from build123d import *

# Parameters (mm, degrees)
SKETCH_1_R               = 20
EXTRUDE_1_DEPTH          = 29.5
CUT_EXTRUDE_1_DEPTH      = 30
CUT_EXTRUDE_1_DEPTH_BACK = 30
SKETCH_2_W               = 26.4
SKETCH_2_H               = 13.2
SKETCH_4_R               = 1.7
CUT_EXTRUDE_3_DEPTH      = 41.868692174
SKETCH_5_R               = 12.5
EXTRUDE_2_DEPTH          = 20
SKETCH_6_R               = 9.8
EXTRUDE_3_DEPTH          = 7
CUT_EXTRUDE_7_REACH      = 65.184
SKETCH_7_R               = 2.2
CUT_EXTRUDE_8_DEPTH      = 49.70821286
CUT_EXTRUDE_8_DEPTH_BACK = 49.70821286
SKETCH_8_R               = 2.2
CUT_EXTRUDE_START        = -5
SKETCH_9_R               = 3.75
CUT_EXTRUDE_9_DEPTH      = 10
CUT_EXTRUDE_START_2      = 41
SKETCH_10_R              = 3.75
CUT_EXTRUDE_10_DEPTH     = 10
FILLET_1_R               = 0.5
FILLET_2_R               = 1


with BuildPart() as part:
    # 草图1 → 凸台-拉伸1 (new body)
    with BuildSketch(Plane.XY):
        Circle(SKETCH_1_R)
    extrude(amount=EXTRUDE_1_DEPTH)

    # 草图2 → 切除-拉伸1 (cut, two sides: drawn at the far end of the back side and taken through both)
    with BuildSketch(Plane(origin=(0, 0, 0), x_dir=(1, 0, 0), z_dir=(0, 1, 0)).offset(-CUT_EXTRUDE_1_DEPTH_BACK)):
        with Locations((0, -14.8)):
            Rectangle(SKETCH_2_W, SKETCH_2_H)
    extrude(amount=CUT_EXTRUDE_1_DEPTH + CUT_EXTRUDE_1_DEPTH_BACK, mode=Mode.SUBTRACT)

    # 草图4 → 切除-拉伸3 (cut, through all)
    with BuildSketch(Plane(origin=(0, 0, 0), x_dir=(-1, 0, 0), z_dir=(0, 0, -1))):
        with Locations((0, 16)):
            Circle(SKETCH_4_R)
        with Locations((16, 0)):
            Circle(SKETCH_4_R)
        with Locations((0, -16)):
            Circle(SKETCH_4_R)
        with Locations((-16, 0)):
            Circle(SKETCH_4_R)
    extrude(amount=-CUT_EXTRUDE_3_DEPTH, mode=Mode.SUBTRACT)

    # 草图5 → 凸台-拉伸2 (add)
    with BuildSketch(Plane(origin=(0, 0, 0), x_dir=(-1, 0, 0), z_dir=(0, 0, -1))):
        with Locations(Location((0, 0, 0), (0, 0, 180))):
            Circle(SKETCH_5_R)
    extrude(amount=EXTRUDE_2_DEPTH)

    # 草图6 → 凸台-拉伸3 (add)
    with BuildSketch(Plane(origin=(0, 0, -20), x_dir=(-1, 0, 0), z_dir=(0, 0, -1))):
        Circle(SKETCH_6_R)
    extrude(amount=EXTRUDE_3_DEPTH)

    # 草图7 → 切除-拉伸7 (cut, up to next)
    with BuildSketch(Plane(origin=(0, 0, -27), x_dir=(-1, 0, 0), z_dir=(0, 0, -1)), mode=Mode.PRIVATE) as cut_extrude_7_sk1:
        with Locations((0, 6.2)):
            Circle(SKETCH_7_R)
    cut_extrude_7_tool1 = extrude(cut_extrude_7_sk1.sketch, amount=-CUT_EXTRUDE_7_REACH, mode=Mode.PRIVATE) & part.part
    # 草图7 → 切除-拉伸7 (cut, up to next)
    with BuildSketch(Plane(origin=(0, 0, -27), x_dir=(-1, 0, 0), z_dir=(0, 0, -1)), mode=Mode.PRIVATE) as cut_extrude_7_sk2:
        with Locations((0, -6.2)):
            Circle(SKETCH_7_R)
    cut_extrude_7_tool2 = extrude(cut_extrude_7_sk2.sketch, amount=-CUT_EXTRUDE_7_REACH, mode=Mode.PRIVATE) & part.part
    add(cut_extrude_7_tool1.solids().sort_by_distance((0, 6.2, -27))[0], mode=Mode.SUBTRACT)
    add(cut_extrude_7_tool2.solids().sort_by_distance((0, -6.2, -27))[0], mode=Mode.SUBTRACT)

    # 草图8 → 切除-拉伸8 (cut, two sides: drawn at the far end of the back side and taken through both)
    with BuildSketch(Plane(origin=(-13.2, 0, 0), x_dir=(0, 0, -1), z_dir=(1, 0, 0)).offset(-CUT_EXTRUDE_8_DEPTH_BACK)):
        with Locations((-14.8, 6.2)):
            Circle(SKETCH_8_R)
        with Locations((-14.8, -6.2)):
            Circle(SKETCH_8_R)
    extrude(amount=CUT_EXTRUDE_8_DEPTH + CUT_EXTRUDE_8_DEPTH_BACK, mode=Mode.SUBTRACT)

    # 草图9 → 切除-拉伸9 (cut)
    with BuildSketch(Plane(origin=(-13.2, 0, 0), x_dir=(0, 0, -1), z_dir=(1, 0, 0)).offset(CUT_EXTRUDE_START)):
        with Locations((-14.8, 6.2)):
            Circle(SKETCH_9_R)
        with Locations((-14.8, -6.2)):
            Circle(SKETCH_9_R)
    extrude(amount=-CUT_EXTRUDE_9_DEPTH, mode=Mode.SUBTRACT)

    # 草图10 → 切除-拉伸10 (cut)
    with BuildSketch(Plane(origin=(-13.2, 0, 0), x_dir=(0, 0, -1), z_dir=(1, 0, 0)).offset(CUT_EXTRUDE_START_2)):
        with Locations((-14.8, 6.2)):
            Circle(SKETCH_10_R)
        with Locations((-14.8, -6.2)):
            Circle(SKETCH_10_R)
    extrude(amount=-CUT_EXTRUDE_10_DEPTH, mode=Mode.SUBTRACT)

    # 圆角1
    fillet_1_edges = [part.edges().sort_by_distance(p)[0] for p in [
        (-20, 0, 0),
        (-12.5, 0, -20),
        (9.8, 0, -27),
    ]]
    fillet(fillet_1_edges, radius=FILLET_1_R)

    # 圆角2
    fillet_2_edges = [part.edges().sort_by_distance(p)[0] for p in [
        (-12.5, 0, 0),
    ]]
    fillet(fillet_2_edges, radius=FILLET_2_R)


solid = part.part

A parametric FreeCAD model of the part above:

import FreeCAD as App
import Part
import Sketcher
Q = App.Units.Quantity


def edges_at(feature, points):
    """Names of the edges that pass closest to the given points."""
    edges = feature.Shape.Edges
    near = lambda p: min(range(len(edges)), key=lambda i: edges[i].distToShape(Part.Vertex(*p))[0])
    return sorted({f"Edge{near(p) + 1}" for p in points})

doc = App.newDocument("Part")
body = doc.addObject("PartDesign::Body", "Body")

# Sketch on XY plane
sketch1 = doc.addObject("Sketcher::SketchObject", "Sketch")
body.addObject(sketch1)
sketch1.AttachmentSupport = (doc.XY_Plane, [""])
sketch1.MapMode = "FlatFace"
sketch1.addGeometry(Part.Circle(App.Vector(0, 0, 0), App.Vector(0, 0, 1), 20), False)
sketch1.addConstraint(Sketcher.Constraint("Coincident", 0, 3, -1, 1))
sketch1.addConstraint(Sketcher.Constraint("Diameter", 0, Q("40 mm")))
pad1 = doc.addObject("PartDesign::Pad", "Pad")
body.addObject(pad1)
pad1.Profile = sketch1
pad1.Length = 29.5

# Sketch on XZ plane
sketch2 = doc.addObject("Sketcher::SketchObject", "Sketch001")
body.addObject(sketch2)
sketch2.AttachmentSupport = (doc.XZ_Plane, [""])
sketch2.MapMode = "FlatFace"
sketch2.addGeometry(Part.LineSegment(App.Vector(-13, 8, 0), App.Vector(-13, 21, 0)), False)
sketch2.addGeometry(Part.LineSegment(App.Vector(-13, 21, 0), App.Vector(13, 21, 0)), False)
sketch2.addGeometry(Part.LineSegment(App.Vector(13, 21, 0), App.Vector(13, 8, 0)), False)
sketch2.addGeometry(Part.LineSegment(App.Vector(13, 8, 0), App.Vector(-13, 8, 0)), False)
sketch2.addConstraint(Sketcher.Constraint("Coincident", 0, 2, 1, 1))
sketch2.addConstraint(Sketcher.Constraint("Coincident", 1, 2, 2, 1))
sketch2.addConstraint(Sketcher.Constraint("Coincident", 2, 2, 3, 1))
sketch2.addConstraint(Sketcher.Constraint("Coincident", 3, 2, 0, 1))
sketch2.addConstraint(Sketcher.Constraint("Vertical", 0))
sketch2.addConstraint(Sketcher.Constraint("Horizontal", 1))
sketch2.addConstraint(Sketcher.Constraint("Vertical", 2))
sketch2.addConstraint(Sketcher.Constraint("Horizontal", 3))
sketch2.addConstraint(Sketcher.Constraint("DistanceX", 1, 1, 1, 2, Q("26.4 mm")))
sketch2.addConstraint(Sketcher.Constraint("DistanceY", 0, 1, 0, 2, Q("13.2 mm")))
sketch2.addConstraint(Sketcher.Constraint("DistanceX", 0, 2, -1, 1, Q("13.2 mm")))
sketch2.addConstraint(Sketcher.Constraint("DistanceY", -1, 1, 0, 2, Q("21.4 mm")))
pocket1 = doc.addObject("PartDesign::Pocket", "Pocket")
body.addObject(pocket1)
pocket1.Profile = sketch2
pocket1.Type = "ThroughAll"
pocket1.Midplane = True

# Sketch on XY plane
sketch3 = doc.addObject("Sketcher::SketchObject", "Sketch002")
body.addObject(sketch3)
sketch3.AttachmentSupport = (doc.XY_Plane, [""])
sketch3.MapMode = "FlatFace"
sketch3.addGeometry(Part.Circle(App.Vector(0, 16, 0), App.Vector(0, 0, 1), 1.7), False)
sketch3.addGeometry(Part.Circle(App.Vector(-16, 0, 0), App.Vector(0, 0, 1), 1.7), False)
sketch3.addGeometry(Part.Circle(App.Vector(0, -16, 0), App.Vector(0, 0, 1), 1.7), False)
sketch3.addGeometry(Part.Circle(App.Vector(16, 0, 0), App.Vector(0, 0, 1), 1.7), False)
sketch3.addConstraint(Sketcher.Constraint("Equal", 0, 1))
sketch3.addConstraint(Sketcher.Constraint("Equal", 1, 2))
sketch3.addConstraint(Sketcher.Constraint("Equal", 2, 3))
sketch3.addConstraint(Sketcher.Constraint("Symmetric", 0, 3, 2, 3, -1, 1))
sketch3.addConstraint(Sketcher.Constraint("Symmetric", 1, 3, 3, 3, -1, 1))
sketch3.addConstraint(Sketcher.Constraint("PointOnObject", 0, 3, -2))
sketch3.addConstraint(Sketcher.Constraint("PointOnObject", 1, 3, -1))
sketch3.addConstraint(Sketcher.Constraint("Diameter", 0, Q("3.4 mm")))
sketch3.addConstraint(Sketcher.Constraint("DistanceY", -1, 1, 0, 3, Q("16 mm")))
sketch3.addConstraint(Sketcher.Constraint("DistanceX", 1, 3, -1, 1, Q("16 mm")))
pocket2 = doc.addObject("PartDesign::Pocket", "Pocket001")
body.addObject(pocket2)
pocket2.Profile = sketch3
pocket2.Type = "ThroughAll"
pocket2.Reversed = True

# Sketch on XY plane
sketch4 = doc.addObject("Sketcher::SketchObject", "Sketch003")
body.addObject(sketch4)
sketch4.AttachmentSupport = (doc.XY_Plane, [""])
sketch4.MapMode = "FlatFace"
sketch4.addGeometry(Part.Circle(App.Vector(0, 0, 0), App.Vector(0, 0, 1), 12), False)
sketch4.addConstraint(Sketcher.Constraint("Coincident", 0, 3, -1, 1))
sketch4.addConstraint(Sketcher.Constraint("Diameter", 0, Q("25 mm")))
pad2 = doc.addObject("PartDesign::Pad", "Pad001")
body.addObject(pad2)
pad2.Profile = sketch4
pad2.Length = 20
pad2.Reversed = True

# Sketch on XY plane
sketch5 = doc.addObject("Sketcher::SketchObject", "Sketch004")
body.addObject(sketch5)
sketch5.AttachmentSupport = (doc.XY_Plane, [""])
sketch5.MapMode = "FlatFace"
sketch5.AttachmentOffset = App.Placement(App.Vector(0, 0, -20), App.Rotation())
sketch5.addGeometry(Part.Circle(App.Vector(0, 0, 0), App.Vector(0, 0, 1), 10), False)
sketch5.addConstraint(Sketcher.Constraint("Coincident", 0, 3, -1, 1))
sketch5.addConstraint(Sketcher.Constraint("Diameter", 0, Q("19.6 mm")))
pad3 = doc.addObject("PartDesign::Pad", "Pad002")
body.addObject(pad3)
pad3.Profile = sketch5
pad3.Length = 7
pad3.Reversed = True

# Sketch on XY plane
sketch6 = doc.addObject("Sketcher::SketchObject", "Sketch005")
body.addObject(sketch6)
sketch6.AttachmentSupport = (doc.XY_Plane, [""])
sketch6.MapMode = "FlatFace"
sketch6.AttachmentOffset = App.Placement(App.Vector(0, 0, -27), App.Rotation())
sketch6.addGeometry(Part.Circle(App.Vector(0, 6.2, 0), App.Vector(0, 0, 1), 2.2), False)
sketch6.addConstraint(Sketcher.Constraint("PointOnObject", 0, 3, -2))
sketch6.addConstraint(Sketcher.Constraint("Diameter", 0, Q("4.4 mm")))
sketch6.addConstraint(Sketcher.Constraint("DistanceY", -1, 1, 0, 3, Q("6.2 mm")))
pocket3 = doc.addObject("PartDesign::Pocket", "Pocket002")
body.addObject(pocket3)
pocket3.Profile = sketch6
pocket3.Type = "UpToFirst"
pocket3.Reversed = True

# Sketch on XY plane
sketch7 = doc.addObject("Sketcher::SketchObject", "Sketch006")
body.addObject(sketch7)
sketch7.AttachmentSupport = (doc.XY_Plane, [""])
sketch7.MapMode = "FlatFace"
sketch7.AttachmentOffset = App.Placement(App.Vector(0, 0, -27), App.Rotation())
sketch7.addGeometry(Part.Circle(App.Vector(0, -6.2, 0), App.Vector(0, 0, 1), 2.2), False)
sketch7.addConstraint(Sketcher.Constraint("PointOnObject", 0, 3, -2))
sketch7.addConstraint(Sketcher.Constraint("Diameter", 0, Q("4.4 mm")))
sketch7.addConstraint(Sketcher.Constraint("DistanceY", 0, 3, -1, 1, Q("6.2 mm")))
pocket4 = doc.addObject("PartDesign::Pocket", "Pocket003")
body.addObject(pocket4)
pocket4.Profile = sketch7
pocket4.Type = "UpToFirst"
pocket4.Reversed = True

# Sketch on YZ plane
sketch8 = doc.addObject("Sketcher::SketchObject", "Sketch007")
body.addObject(sketch8)
sketch8.AttachmentSupport = (doc.YZ_Plane, [""])
sketch8.MapMode = "FlatFace"
sketch8.AttachmentOffset = App.Placement(App.Vector(0, 0, -13.2), App.Rotation())
sketch8.addGeometry(Part.Circle(App.Vector(6.2, 14.8, 0), App.Vector(0, 0, 1), 2.2), False)
sketch8.addGeometry(Part.Circle(App.Vector(-6.2, 14.8, 0), App.Vector(0, 0, 1), 2.2), False)
sketch8.addConstraint(Sketcher.Constraint("Equal", 0, 1))
sketch8.addConstraint(Sketcher.Constraint("Symmetric", 0, 3, 1, 3, -2))
sketch8.addConstraint(Sketcher.Constraint("Diameter", 0, Q("4.4 mm")))
sketch8.addConstraint(Sketcher.Constraint("DistanceX", -1, 1, 0, 3, Q("6.2 mm")))
sketch8.addConstraint(Sketcher.Constraint("DistanceY", -1, 1, 0, 3, Q("14.8 mm")))
pocket5 = doc.addObject("PartDesign::Pocket", "Pocket004")
body.addObject(pocket5)
pocket5.Profile = sketch8
pocket5.Type = "ThroughAll"
pocket5.Midplane = True

# Sketch on YZ plane
sketch9 = doc.addObject("Sketcher::SketchObject", "Sketch008")
body.addObject(sketch9)
sketch9.AttachmentSupport = (doc.YZ_Plane, [""])
sketch9.MapMode = "FlatFace"
sketch9.AttachmentOffset = App.Placement(App.Vector(0, 0, -18.2), App.Rotation())
sketch9.addGeometry(Part.Circle(App.Vector(6.2, 14.8, 0), App.Vector(0, 0, 1), 3.8), False)
sketch9.addGeometry(Part.Circle(App.Vector(-6.2, 14.8, 0), App.Vector(0, 0, 1), 3.8), False)
sketch9.addConstraint(Sketcher.Constraint("Equal", 0, 1))
sketch9.addConstraint(Sketcher.Constraint("Symmetric", 0, 3, 1, 3, -2))
sketch9.addConstraint(Sketcher.Constraint("Diameter", 0, Q("7.5 mm")))
sketch9.addConstraint(Sketcher.Constraint("DistanceX", -1, 1, 0, 3, Q("6.2 mm")))
sketch9.addConstraint(Sketcher.Constraint("DistanceY", -1, 1, 0, 3, Q("14.8 mm")))
pocket6 = doc.addObject("PartDesign::Pocket", "Pocket005")
body.addObject(pocket6)
pocket6.Profile = sketch9
pocket6.Length = 10

# Sketch on YZ plane
sketch10 = doc.addObject("Sketcher::SketchObject", "Sketch009")
body.addObject(sketch10)
sketch10.AttachmentSupport = (doc.YZ_Plane, [""])
sketch10.MapMode = "FlatFace"
sketch10.AttachmentOffset = App.Placement(App.Vector(0, 0, 27.8), App.Rotation())
sketch10.addGeometry(Part.Circle(App.Vector(6.2, 14.8, 0), App.Vector(0, 0, 1), 3.8), False)
sketch10.addGeometry(Part.Circle(App.Vector(-6.2, 14.8, 0), App.Vector(0, 0, 1), 3.8), False)
sketch10.addConstraint(Sketcher.Constraint("Equal", 0, 1))
sketch10.addConstraint(Sketcher.Constraint("Symmetric", 0, 3, 1, 3, -2))
sketch10.addConstraint(Sketcher.Constraint("Diameter", 0, Q("7.5 mm")))
sketch10.addConstraint(Sketcher.Constraint("DistanceX", -1, 1, 0, 3, Q("6.2 mm")))
sketch10.addConstraint(Sketcher.Constraint("DistanceY", -1, 1, 0, 3, Q("14.8 mm")))
pocket7 = doc.addObject("PartDesign::Pocket", "Pocket006")
body.addObject(pocket7)
pocket7.Profile = sketch10
pocket7.Length = 10
doc.recompute()

fillet = doc.addObject("PartDesign::Fillet", "Fillet")
body.addObject(fillet)
fillet.Base = (pocket7, edges_at(pocket7, [(-20, 0, 0), (-12.5, 0, -20), (9.8, 0, -27)]))
fillet.Radius = 0.5
doc.recompute()

fillet2 = doc.addObject("PartDesign::Fillet", "Fillet001")
body.addObject(fillet2)
fillet2.Base = (fillet, edges_at(fillet, [(-12.5, 0, 0)]))
fillet2.Radius = 1

doc.recompute()
